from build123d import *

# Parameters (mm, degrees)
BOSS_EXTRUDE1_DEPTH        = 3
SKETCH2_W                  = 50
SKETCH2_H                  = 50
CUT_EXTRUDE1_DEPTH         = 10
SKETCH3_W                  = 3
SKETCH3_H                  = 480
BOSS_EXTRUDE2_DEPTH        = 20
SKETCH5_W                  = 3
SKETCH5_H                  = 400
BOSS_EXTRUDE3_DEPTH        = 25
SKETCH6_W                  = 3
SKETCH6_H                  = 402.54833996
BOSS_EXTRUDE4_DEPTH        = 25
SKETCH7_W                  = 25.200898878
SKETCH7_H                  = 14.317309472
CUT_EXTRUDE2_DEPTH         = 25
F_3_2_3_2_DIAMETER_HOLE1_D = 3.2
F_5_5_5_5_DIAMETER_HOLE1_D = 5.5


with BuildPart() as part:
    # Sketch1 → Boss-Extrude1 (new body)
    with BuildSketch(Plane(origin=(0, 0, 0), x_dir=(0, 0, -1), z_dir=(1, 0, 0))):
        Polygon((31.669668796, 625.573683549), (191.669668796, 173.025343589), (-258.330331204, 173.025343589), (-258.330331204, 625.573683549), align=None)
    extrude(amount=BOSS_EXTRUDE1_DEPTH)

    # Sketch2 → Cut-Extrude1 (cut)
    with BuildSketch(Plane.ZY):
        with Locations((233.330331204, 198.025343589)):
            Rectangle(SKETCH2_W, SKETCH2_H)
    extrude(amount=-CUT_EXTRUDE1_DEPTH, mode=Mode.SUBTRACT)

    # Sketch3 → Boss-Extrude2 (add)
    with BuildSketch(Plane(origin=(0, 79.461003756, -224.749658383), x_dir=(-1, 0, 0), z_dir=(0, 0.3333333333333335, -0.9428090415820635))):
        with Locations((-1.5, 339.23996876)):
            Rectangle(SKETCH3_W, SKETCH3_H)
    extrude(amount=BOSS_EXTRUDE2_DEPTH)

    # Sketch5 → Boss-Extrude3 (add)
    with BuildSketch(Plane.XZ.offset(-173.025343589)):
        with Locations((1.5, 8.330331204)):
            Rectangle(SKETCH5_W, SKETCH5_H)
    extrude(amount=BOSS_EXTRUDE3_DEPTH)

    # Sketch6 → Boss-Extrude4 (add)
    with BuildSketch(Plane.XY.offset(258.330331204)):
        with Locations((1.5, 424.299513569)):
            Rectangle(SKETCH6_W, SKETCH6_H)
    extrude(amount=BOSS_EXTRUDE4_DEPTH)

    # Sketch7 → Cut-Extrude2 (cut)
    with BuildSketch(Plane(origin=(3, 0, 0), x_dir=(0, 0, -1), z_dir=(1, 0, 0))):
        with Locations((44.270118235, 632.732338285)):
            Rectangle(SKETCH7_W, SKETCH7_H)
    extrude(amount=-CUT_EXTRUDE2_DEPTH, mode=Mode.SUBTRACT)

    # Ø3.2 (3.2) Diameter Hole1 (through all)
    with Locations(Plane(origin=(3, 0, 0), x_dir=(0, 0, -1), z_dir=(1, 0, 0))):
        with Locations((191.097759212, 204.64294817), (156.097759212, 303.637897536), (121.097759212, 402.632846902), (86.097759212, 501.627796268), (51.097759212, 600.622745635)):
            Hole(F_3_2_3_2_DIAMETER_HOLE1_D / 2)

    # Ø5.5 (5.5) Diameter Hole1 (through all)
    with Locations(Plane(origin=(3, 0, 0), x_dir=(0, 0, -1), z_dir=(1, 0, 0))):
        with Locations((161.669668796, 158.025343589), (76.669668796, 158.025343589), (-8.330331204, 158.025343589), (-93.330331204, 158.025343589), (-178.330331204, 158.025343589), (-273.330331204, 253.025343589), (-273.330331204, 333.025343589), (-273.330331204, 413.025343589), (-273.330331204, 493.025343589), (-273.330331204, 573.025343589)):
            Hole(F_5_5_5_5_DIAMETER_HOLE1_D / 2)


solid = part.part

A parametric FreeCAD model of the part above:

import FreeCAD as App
import Part
import Sketcher
Q = App.Units.Quantity

doc = App.newDocument("Part")
params = doc.addObject("Spreadsheet::Sheet", "Params")
for row, (alias, value) in enumerate([
    ("sketch1_height", "290 mm"),
    ("sketch1_height2", "450 mm"),
    ("sketch1_length", "480 mm"),
    ("pad1_length", "3 mm"),
    ("sketch2_width", "50 mm"),
    ("pocket1_length", "10 mm"),
    ("sketch3_width", "3 mm"),
    ("sketch3_height", "480 mm"),
    ("pad2_length", "20 mm"),
    ("sketch4_width", "3 mm"),
    ("sketch4_height", "400 mm"),
    ("pad3_length", "25 mm"),
    ("sketch5_width", "3 mm"),
    ("pad4_length", "25 mm"),
    ("pocket2_length", "25 mm"),
    ("sketch7_diameter", "3.2 mm"),
    ("hole_diameter", "3.2 mm"),
    ("sketch8_diameter", "5.5 mm"),
    ("hole2_diameter", "5.5 mm"),
], start=1):
    params.set(f"A{row}", alias)
    params.set(f"B{row}", "=" + value)
    params.setAlias(f"B{row}", alias)

body = doc.addObject("PartDesign::Body", "Body")

sketch1 = body.newObject("Sketcher::SketchObject", "Sketch")
sketch1.AttachmentSupport = (doc.getObject("YZ_Plane"), [""])
sketch1.MapMode = "FlatFace"
sketch1.addGeometry(Part.LineSegment(App.Vector(173.025344, -191.669669, 0), App.Vector(625.573684, -31.669669, 0)), False)
sketch1.addGeometry(Part.LineSegment(App.Vector(625.573684, -31.669669, 0), App.Vector(625.573684, 258.330331, 0)), False)
sketch1.addGeometry(Part.LineSegment(App.Vector(625.573684, 258.330331, 0), App.Vector(173.025344, 258.330331, 0)), False)
sketch1.addGeometry(Part.LineSegment(App.Vector(173.025344, 258.330331, 0), App.Vector(173.025344, -191.669669, 0)), False)
sketch1.addConstraint(Sketcher.Constraint("Coincident", 0, 2, 1, 1))
sketch1.addConstraint(Sketcher.Constraint("Coincident", 1, 2, 2, 1))
sketch1.addConstraint(Sketcher.Constraint("Coincident", 2, 2, 3, 1))
sketch1.addConstraint(Sketcher.Constraint("Coincident", 3, 2, 0, 1))
sketch1.addConstraint(Sketcher.Constraint("Vertical", 1))
sketch1.addConstraint(Sketcher.Constraint("Horizontal", 2))
sketch1.addConstraint(Sketcher.Constraint("Vertical", 3))
sketch1.addConstraint(Sketcher.Constraint("DistanceY", 1, 1, 1, 2, Q("290 mm")))
sketch1.addConstraint(Sketcher.Constraint("DistanceY", 3, 2, 3, 1, Q("450 mm")))
sketch1.addConstraint(Sketcher.Constraint("Distance", 0, Q("480 mm")))
sketch1.addConstraint(Sketcher.Constraint("DistanceY", 0, 2, -1, 1, Q("31.669669 mm")))
sketch1.addConstraint(Sketcher.Constraint("DistanceX", -1, 1, 0, 2, Q("625.573684 mm")))
sketch1.setExpression("Constraints[7]", "Params.sketch1_height")
sketch1.setExpression("Constraints[8]", "Params.sketch1_height2")
sketch1.setExpression("Constraints[9]", "Params.sketch1_length")
pad1 = body.newObject("PartDesign::Pad", "Pad")
pad1.Profile = sketch1
pad1.setExpression("Length", "Params.pad1_length")

sketch2 = body.newObject("Sketcher::SketchObject", "Sketch001")
sketch2.AttachmentSupport = (doc.getObject("YZ_Plane"), [""])
sketch2.MapMode = "FlatFace"
sketch2.addGeometry(Part.LineSegment(App.Vector(223.025344, 208.330331, 0), App.Vector(173.025344, 208.330331, 0)), False)
sketch2.addGeometry(Part.LineSegment(App.Vector(173.025344, 208.330331, 0), App.Vector(173.025344, 258.330331, 0)), False)
sketch2.addGeometry(Part.LineSegment(App.Vector(173.025344, 258.330331, 0), App.Vector(223.025344, 258.330331, 0)), False)
sketch2.addGeometry(Part.LineSegment(App.Vector(223.025344, 258.330331, 0), App.Vector(223.025344, 208.330331, 0)), False)
sketch2.addConstraint(Sketcher.Constraint("Coincident", 0, 2, 1, 1))
sketch2.addConstraint(Sketcher.Constraint("Coincident", 1, 2, 2, 1))
sketch2.addConstraint(Sketcher.Constraint("Coincident", 2, 2, 3, 1))
sketch2.addConstraint(Sketcher.Constraint("Coincident", 3, 2, 0, 1))
sketch2.addConstraint(Sketcher.Constraint("Horizontal", 0))
sketch2.addConstraint(Sketcher.Constraint("Vertical", 1))
sketch2.addConstraint(Sketcher.Constraint("Horizontal", 2))
sketch2.addConstraint(Sketcher.Constraint("Vertical", 3))
sketch2.addConstraint(Sketcher.Constraint("Equal", 2, 1))
sketch2.addConstraint(Sketcher.Constraint("DistanceX", 0, 2, 0, 1, Q("50 mm")))
sketch2.addConstraint(Sketcher.Constraint("DistanceY", -1, 1, 0, 2, Q("208.330331 mm")))
sketch2.addConstraint(Sketcher.Constraint("DistanceX", -1, 1, 0, 2, Q("173.025344 mm")))
sketch2.setExpression("Constraints[9]", "Params.sketch2_width")
pocket1 = body.newObject("PartDesign::Pocket", "Pocket")
pocket1.Profile = sketch2
pocket1.setExpression("Length", "Params.pocket1_length")
pocket1.Reversed = True

sketch3 = body.newObject("Sketcher::SketchObject", "Sketch002")
sketch3.Placement = App.Placement(App.Vector(0, 79.461004, -224.749658), App.Rotation(App.Vector(-1, 0, 0), App.Vector(0, 0.942809042, 0.333333333), App.Vector(0, 0.333333333, -0.942809042), "ZXY"))
sketch3.addGeometry(Part.LineSegment(App.Vector(-3, 579.239969, 0), App.Vector(-3, 99.239969, 0)), False)
sketch3.addGeometry(Part.LineSegment(App.Vector(-3, 99.239969, 0), App.Vector(0, 99.239969, 0)), False)
sketch3.addGeometry(Part.LineSegment(App.Vector(0, 99.239969, 0), App.Vector(0, 579.239969, 0)), False)
sketch3.addGeometry(Part.LineSegment(App.Vector(0, 579.239969, 0), App.Vector(-3, 579.239969, 0)), False)
sketch3.addConstraint(Sketcher.Constraint("Coincident", 0, 2, 1, 1))
sketch3.addConstraint(Sketcher.Constraint("Coincident", 1, 2, 2, 1))
sketch3.addConstraint(Sketcher.Constraint("Coincident", 2, 2, 3, 1))
sketch3.addConstraint(Sketcher.Constraint("Coincident", 3, 2, 0, 1))
sketch3.addConstraint(Sketcher.Constraint("Vertical", 0))
sketch3.addConstraint(Sketcher.Constraint("Horizontal", 1))
sketch3.addConstraint(Sketcher.Constraint("Vertical", 2))
sketch3.addConstraint(Sketcher.Constraint("Horizontal", 3))
sketch3.addConstraint(Sketcher.Constraint("PointOnObject", 1, 2, -2))
sketch3.addConstraint(Sketcher.Constraint("DistanceX", 1, 1, 1, 2, Q("3 mm")))
sketch3.addConstraint(Sketcher.Constraint("DistanceY", 0, 2, 0, 1, Q("480 mm")))
sketch3.addConstraint(Sketcher.Constraint("DistanceY", -1, 1, 0, 2, Q("99.239969 mm")))
sketch3.setExpression("Constraints[9]", "Params.sketch3_width")
sketch3.setExpression("Constraints[10]", "Params.sketch3_height")
pad2 = body.newObject("PartDesign::Pad", "Pad001")
pad2.Profile = sketch3
pad2.setExpression("Length", "Params.pad2_length")

sketch4 = body.newObject("Sketcher::SketchObject", "Sketch003")
sketch4.AttachmentSupport = (doc.getObject("XZ_Plane"), [""])
sketch4.MapMode = "FlatFace"
sketch4.AttachmentOffset = App.Placement(App.Vector(0, 0, -173.025344), App.Rotation())
sketch4.addGeometry(Part.LineSegment(App.Vector(0, 208.330331, 0), App.Vector(0, -191.669669, 0)), False)
sketch4.addGeometry(Part.LineSegment(App.Vector(0, -191.669669, 0), App.Vector(3, -191.669669, 0)), False)
sketch4.addGeometry(Part.LineSegment(App.Vector(3, -191.669669, 0), App.Vector(3, 208.330331, 0)), False)
sketch4.addGeometry(Part.LineSegment(App.Vector(3, 208.330331, 0), App.Vector(0, 208.330331, 0)), False)
sketch4.addConstraint(Sketcher.Constraint("Coincident", 0, 2, 1, 1))
sketch4.addConstraint(Sketcher.Constraint("Coincident", 1, 2, 2, 1))
sketch4.addConstraint(Sketcher.Constraint("Coincident", 2, 2, 3, 1))
sketch4.addConstraint(Sketcher.Constraint("Coincident", 3, 2, 0, 1))
sketch4.addConstraint(Sketcher.Constraint("Vertical", 0))
sketch4.addConstraint(Sketcher.Constraint("Horizontal", 1))
sketch4.addConstraint(Sketcher.Constraint("Vertical", 2))
sketch4.addConstraint(Sketcher.Constraint("Horizontal", 3))
sketch4.addConstraint(Sketcher.Constraint("PointOnObject", 0, 2, -2))
sketch4.addConstraint(Sketcher.Constraint("DistanceX", 1, 1, 1, 2, Q("3 mm")))
sketch4.addConstraint(Sketcher.Constraint("DistanceY", 0, 2, 0, 1, Q("400 mm")))
sketch4.addConstraint(Sketcher.Constraint("DistanceY", 0, 2, -1, 1, Q("191.669669 mm")))
sketch4.setExpression("Constraints[9]", "Params.sketch4_width")
sketch4.setExpression("Constraints[10]", "Params.sketch4_height")
pad3 = body.newObject("PartDesign::Pad", "Pad002")
pad3.Profile = sketch4
pad3.setExpression("Length", "Params.pad3_length")

sketch5 = body.newObject("Sketcher::SketchObject", "Sketch004")
sketch5.AttachmentSupport = (doc.getObject("XY_Plane"), [""])
sketch5.MapMode = "FlatFace"
sketch5.AttachmentOffset = App.Placement(App.Vector(0, 0, 258.330331), App.Rotation())
sketch5.addGeometry(Part.LineSegment(App.Vector(0, 625.573684, 0), App.Vector(0, 223.025344, 0)), False)
sketch5.addGeometry(Part.LineSegment(App.Vector(0, 223.025344, 0), App.Vector(3, 223.025344, 0)), False)
sketch5.addGeometry(Part.LineSegment(App.Vector(3, 223.025344, 0), App.Vector(3, 625.573684, 0)), False)
sketch5.addGeometry(Part.LineSegment(App.Vector(3, 625.573684, 0), App.Vector(0, 625.573684, 0)), False)
sketch5.addConstraint(Sketcher.Constraint("Coincident", 0, 2, 1, 1))
sketch5.addConstraint(Sketcher.Constraint("Coincident", 1, 2, 2, 1))
sketch5.addConstraint(Sketcher.Constraint("Coincident", 2, 2, 3, 1))
sketch5.addConstraint(Sketcher.Constraint("Coincident", 3, 2, 0, 1))
sketch5.addConstraint(Sketcher.Constraint("Vertical", 0))
sketch5.addConstraint(Sketcher.Constraint("Horizontal", 1))
sketch5.addConstraint(Sketcher.Constraint("Vertical", 2))
sketch5.addConstraint(Sketcher.Constraint("Horizontal", 3))
sketch5.addConstraint(Sketcher.Constraint("PointOnObject", 0, 2, -2))
sketch5.addConstraint(Sketcher.Constraint("DistanceX", 1, 1, 1, 2, Q("3 mm")))
sketch5.addConstraint(Sketcher.Constraint("DistanceY", 0, 2, 0, 1, Q("402.54834 mm")))
sketch5.addConstraint(Sketcher.Constraint("DistanceY", -1, 1, 0, 2, Q("223.025344 mm")))
sketch5.setExpression("Constraints[9]", "Params.sketch5_width")
pad4 = body.newObject("PartDesign::Pad", "Pad003")
pad4.Profile = sketch5
pad4.setExpression("Length", "Params.pad4_length")

sketch6 = body.newObject("Sketcher::SketchObject", "Sketch005")
sketch6.AttachmentSupport = (doc.getObject("YZ_Plane"), [""])
sketch6.MapMode = "FlatFace"
sketch6.AttachmentOffset = App.Placement(App.Vector(0, 0, 3), App.Rotation())
sketch6.addGeometry(Part.LineSegment(App.Vector(639.890993, -31.669669, 0), App.Vector(625.573684, -31.669669, 0)), False)
sketch6.addGeometry(Part.LineSegment(App.Vector(625.573684, -31.669669, 0), App.Vector(625.573684, -56.870568, 0)), False)
sketch6.addGeometry(Part.LineSegment(App.Vector(625.573684, -56.870568, 0), App.Vector(639.890993, -56.870568, 0)), False)
sketch6.addGeometry(Part.LineSegment(App.Vector(639.890993, -56.870568, 0), App.Vector(639.890993, -31.669669, 0)), False)
sketch6.addConstraint(Sketcher.Constraint("Coincident", 0, 2, 1, 1))
sketch6.addConstraint(Sketcher.Constraint("Coincident", 1, 2, 2, 1))
sketch6.addConstraint(Sketcher.Constraint("Coincident", 2, 2, 3, 1))
sketch6.addConstraint(Sketcher.Constraint("Coincident", 3, 2, 0, 1))
sketch6.addConstraint(Sketcher.Constraint("Horizontal", 0))
sketch6.addConstraint(Sketcher.Constraint("Vertical", 1))
sketch6.addConstraint(Sketcher.Constraint("Horizontal", 2))
sketch6.addConstraint(Sketcher.Constraint("Vertical", 3))
sketch6.addConstraint(Sketcher.Constraint("DistanceY", 1, 2, 1, 1, Q("25.200899 mm")))
sketch6.addConstraint(Sketcher.Constraint("DistanceX", 0, 2, 0, 1, Q("14.317309 mm")))
sketch6.addConstraint(Sketcher.Constraint("DistanceY", 0, 2, -1, 1, Q("31.669669 mm")))
sketch6.addConstraint(Sketcher.Constraint("DistanceX", -1, 1, 0, 2, Q("625.573684 mm")))
pocket2 = body.newObject("PartDesign::Pocket", "Pocket001")
pocket2.Profile = sketch6
pocket2.setExpression("Length", "Params.pocket2_length")

sketch7 = body.newObject("Sketcher::SketchObject", "Sketch006")
sketch7.AttachmentSupport = (doc.getObject("YZ_Plane"), [""])
sketch7.MapMode = "FlatFace"
sketch7.AttachmentOffset = App.Placement(App.Vector(0, 0, 3), App.Rotation())
sketch7.addGeometry(Part.Circle(App.Vector(204.642948, -191.097759, 0), App.Vector(0, 0, 1), 1.6), False)
sketch7.addGeometry(Part.Circle(App.Vector(303.637898, -156.097759, 0), App.Vector(0, 0, 1), 1.6), False)
sketch7.addGeometry(Part.Circle(App.Vector(402.632847, -121.097759, 0), App.Vector(0, 0, 1), 1.6), False)
sketch7.addGeometry(Part.Circle(App.Vector(501.627796, -86.097759, 0), App.Vector(0, 0, 1), 1.6), False)
sketch7.addGeometry(Part.Circle(App.Vector(600.622746, -51.097759, 0), App.Vector(0, 0, 1), 1.6), False)
sketch7.addConstraint(Sketcher.Constraint("Equal", 0, 1))
sketch7.addConstraint(Sketcher.Constraint("Equal", 1, 2))
sketch7.addConstraint(Sketcher.Constraint("Equal", 2, 3))
sketch7.addConstraint(Sketcher.Constraint("Equal", 3, 4))
sketch7.addConstraint(Sketcher.Constraint("Diameter", 0, Q("3.2 mm")))
sketch7.addConstraint(Sketcher.Constraint("DistanceY", 0, 3, 1, 3, Q("35 mm")))
sketch7.addConstraint(Sketcher.Constraint("DistanceY", 1, 3, 2, 3, Q("35 mm")))
sketch7.addConstraint(Sketcher.Constraint("DistanceY", 2, 3, 3, 3, Q("35 mm")))
sketch7.addConstraint(Sketcher.Constraint("DistanceY", 3, 3, 4, 3, Q("35 mm")))
sketch7.addConstraint(Sketcher.Constraint("DistanceX", 0, 3, 2, 3, Q("197.989899 mm")))
sketch7.addConstraint(Sketcher.Constraint("DistanceX", 1, 3, 3, 3, Q("197.989899 mm")))
sketch7.addConstraint(Sketcher.Constraint("DistanceX", 2, 3, 4, 3, Q("197.989899 mm")))
sketch7.addConstraint(Sketcher.Constraint("DistanceX", -1, 1, 0, 3, Q("204.642948 mm")))
sketch7.addConstraint(Sketcher.Constraint("DistanceY", 0, 3, -1, 1, Q("191.097759 mm")))
sketch7.addConstraint(Sketcher.Constraint("DistanceX", 0, 3, 1, 3, Q("98.994949 mm")))
sketch7.setExpression("Constraints[4]", "Params.sketch7_diameter")
doc.recompute()
hole = body.newObject("PartDesign::Hole", "Hole")
hole.Profile = sketch7
hole.ThreadType = "None"
hole.setExpression("Diameter", "Params.hole_diameter")
hole.DepthType = "ThroughAll"

sketch8 = body.newObject("Sketcher::SketchObject", "Sketch007")
sketch8.AttachmentSupport = (doc.getObject("YZ_Plane"), [""])
sketch8.MapMode = "FlatFace"
sketch8.AttachmentOffset = App.Placement(App.Vector(0, 0, 3), App.Rotation())
sketch8.addGeometry(Part.Circle(App.Vector(158.025344, -161.669669, 0), App.Vector(0, 0, 1), 2.75), False)
sketch8.addGeometry(Part.Circle(App.Vector(158.025344, -76.669669, 0), App.Vector(0, 0, 1), 2.75), False)
sketch8.addGeometry(Part.Circle(App.Vector(158.025344, 8.330331, 0), App.Vector(0, 0, 1), 2.75), False)
sketch8.addGeometry(Part.Circle(App.Vector(158.025344, 93.330331, 0), App.Vector(0, 0, 1), 2.75), False)
sketch8.addGeometry(Part.Circle(App.Vector(158.025344, 178.330331, 0), App.Vector(0, 0, 1), 2.75), False)
sketch8.addGeometry(Part.Circle(App.Vector(253.025344, 273.330331, 0), App.Vector(0, 0, 1), 2.75), False)
sketch8.addGeometry(Part.Circle(App.Vector(333.025344, 273.330331, 0), App.Vector(0, 0, 1), 2.75), False)
sketch8.addGeometry(Part.Circle(App.Vector(413.025344, 273.330331, 0), App.Vector(0, 0, 1), 2.75), False)
sketch8.addGeometry(Part.Circle(App.Vector(493.025344, 273.330331, 0), App.Vector(0, 0, 1), 2.75), False)
sketch8.addGeometry(Part.Circle(App.Vector(573.025344, 273.330331, 0), App.Vector(0, 0, 1), 2.75), False)
sketch8.addConstraint(Sketcher.Constraint("Equal", 0, 1))
sketch8.addConstraint(Sketcher.Constraint("Equal", 1, 2))
sketch8.addConstraint(Sketcher.Constraint("Equal", 2, 3))
sketch8.addConstraint(Sketcher.Constraint("Equal", 3, 4))
sketch8.addConstraint(Sketcher.Constraint("Equal", 4, 5))
sketch8.addConstraint(Sketcher.Constraint("Equal", 5, 6))
sketch8.addConstraint(Sketcher.Constraint("Equal", 6, 7))
sketch8.addConstraint(Sketcher.Constraint("Equal", 7, 8))
sketch8.addConstraint(Sketcher.Constraint("Equal", 8, 9))
sketch8.addConstraint(Sketcher.Constraint("Horizontal", 5, 3, 6, 3))
sketch8.addConstraint(Sketcher.Constraint("Horizontal", 6, 3, 7, 3))
sketch8.addConstraint(Sketcher.Constraint("Horizontal", 7, 3, 8, 3))
sketch8.addConstraint(Sketcher.Constraint("Horizontal", 8, 3, 9, 3))
sketch8.addConstraint(Sketcher.Constraint("Vertical", 0, 3, 1, 3))
sketch8.addConstraint(Sketcher.Constraint("Vertical", 1, 3, 2, 3))
sketch8.addConstraint(Sketcher.Constraint("Vertical", 2, 3, 3, 3))
sketch8.addConstraint(Sketcher.Constraint("Vertical", 3, 3, 4, 3))
sketch8.addConstraint(Sketcher.Constraint("Diameter", 0, Q("5.5 mm")))
sketch8.addConstraint(Sketcher.Constraint("DistanceY", 0, 3, 1, 3, Q("85 mm")))
sketch8.addConstraint(Sketcher.Constraint("DistanceY", 1, 3, 2, 3, Q("85 mm")))
sketch8.addConstraint(Sketcher.Constraint("DistanceY", 2, 3, 3, 3, Q("85 mm")))
sketch8.addConstraint(Sketcher.Constraint("DistanceY", 3, 3, 4, 3, Q("85 mm")))
sketch8.addConstraint(Sketcher.Constraint("DistanceX", 4, 3, 5, 3, Q("95 mm")))
sketch8.addConstraint(Sketcher.Constraint("DistanceY", 4, 3, 5, 3, Q("95 mm")))
sketch8.addConstraint(Sketcher.Constraint("DistanceX", 5, 3, 6, 3, Q("80 mm")))
sketch8.addConstraint(Sketcher.Constraint("DistanceX", 6, 3, 7, 3, Q("80 mm")))
sketch8.addConstraint(Sketcher.Constraint("DistanceX", 7, 3, 8, 3, Q("80 mm")))
sketch8.addConstraint(Sketcher.Constraint("DistanceX", 8, 3, 9, 3, Q("80 mm")))
sketch8.addConstraint(Sketcher.Constraint("DistanceY", 0, 3, -1, 1, Q("161.669669 mm")))
sketch8.addConstraint(Sketcher.Constraint("DistanceX", -1, 1, 0, 3, Q("158.025344 mm")))
sketch8.setExpression("Constraints[17]", "Params.sketch8_diameter")
doc.recompute()
hole2 = body.newObject("PartDesign::Hole", "Hole001")
hole2.Profile = sketch8
hole2.ThreadType = "None"
hole2.setExpression("Diameter", "Params.hole2_diameter")
hole2.DepthType = "ThroughAll"

doc.recompute()
